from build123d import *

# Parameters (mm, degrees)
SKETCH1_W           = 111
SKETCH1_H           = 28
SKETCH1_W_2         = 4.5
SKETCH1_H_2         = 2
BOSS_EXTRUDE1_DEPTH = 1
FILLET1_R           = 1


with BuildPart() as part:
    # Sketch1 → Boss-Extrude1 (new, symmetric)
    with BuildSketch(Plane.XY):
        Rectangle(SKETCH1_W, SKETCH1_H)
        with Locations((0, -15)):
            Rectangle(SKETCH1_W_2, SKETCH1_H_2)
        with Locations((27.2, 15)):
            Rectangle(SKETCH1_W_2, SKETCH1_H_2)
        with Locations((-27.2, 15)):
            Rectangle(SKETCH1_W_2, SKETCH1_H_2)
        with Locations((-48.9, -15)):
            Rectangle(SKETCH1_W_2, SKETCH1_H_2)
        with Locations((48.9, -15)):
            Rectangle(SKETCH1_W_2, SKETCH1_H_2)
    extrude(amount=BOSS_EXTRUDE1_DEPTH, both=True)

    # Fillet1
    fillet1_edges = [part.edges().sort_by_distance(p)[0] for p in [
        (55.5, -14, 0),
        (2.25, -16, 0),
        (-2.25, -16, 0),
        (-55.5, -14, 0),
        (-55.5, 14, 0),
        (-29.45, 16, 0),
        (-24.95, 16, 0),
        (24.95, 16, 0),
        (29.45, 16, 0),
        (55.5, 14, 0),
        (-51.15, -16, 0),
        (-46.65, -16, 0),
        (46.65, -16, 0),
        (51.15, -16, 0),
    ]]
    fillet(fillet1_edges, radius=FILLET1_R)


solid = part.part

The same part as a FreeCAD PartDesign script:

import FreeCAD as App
import Part
import Sketcher
from FreeCAD import Vector
Q = App.Units.Quantity


def edges_at(feature, points):
    """Names of the edges that pass closest to the given points."""
    edges = feature.Shape.Edges
    near = lambda p: min(range(len(edges)), key=lambda i: edges[i].distToShape(Part.Vertex(*p))[0])
    return sorted({f"Edge{near(p) + 1}" for p in points})


def add_polygon(sketch, points):
    """Adds a closed chain of lines whose ends are joined by coincident constraints."""
    first, n = sketch.GeometryCount, len(points)
    for a, b in zip(points, points[1:] + points[:1]):
        sketch.addGeometry(Part.LineSegment(App.Vector(*a, 0), App.Vector(*b, 0)), False)
    for i in range(n):
        sketch.addConstraint(Sketcher.Constraint("Coincident", first + i, 2, first + (i + 1) % n, 1))

doc = App.newDocument("Part")
body = doc.addObject("PartDesign::Body", "Body")

# Sketch on XY plane
sketch1 = body.newObject("Sketcher::SketchObject", "Sketch")
sketch1.AttachmentSupport = (doc.getObject("XY_Plane"), [""])
sketch1.MapMode = "FlatFace"
add_polygon(sketch1, [(-55.5, 14), (-55.5, -14), (-51.15, -14), (-51.15, -16), (-46.65, -16), (-46.65, -14), (-2.25, -14), (-2.25, -16), (2.25, -16), (2.25, -14), (46.65, -14), (46.65, -16), (51.15, -16), (51.15, -14), (55.5, -14), (55.5, 14), (29.45, 14), (29.45, 16), (24.95, 16), (24.95, 14), (-24.95, 14), (-24.95, 16), (-29.45, 16), (-29.45, 14)])  # lines 0-23
sketch1.addConstraint([
    Sketcher.Constraint("Vertical", 0),
    Sketcher.Constraint("Horizontal", 1),
    Sketcher.Constraint("Vertical", 2),
    Sketcher.Constraint("Horizontal", 3),
    Sketcher.Constraint("Vertical", 4),
    Sketcher.Constraint("Horizontal", 5),
    Sketcher.Constraint("Vertical", 6),
    Sketcher.Constraint("Horizontal", 7),
    Sketcher.Constraint("Vertical", 8),
    Sketcher.Constraint("Horizontal", 9),
    Sketcher.Constraint("Vertical", 10),
    Sketcher.Constraint("Horizontal", 11),
    Sketcher.Constraint("Vertical", 12),
    Sketcher.Constraint("Horizontal", 13),
    Sketcher.Constraint("Vertical", 14),
    Sketcher.Constraint("Horizontal", 15),
    Sketcher.Constraint("Vertical", 16),
    Sketcher.Constraint("Horizontal", 17),
    Sketcher.Constraint("Vertical", 18),
    Sketcher.Constraint("Horizontal", 19),
    Sketcher.Constraint("Vertical", 20),
    Sketcher.Constraint("Horizontal", 21),
    Sketcher.Constraint("Vertical", 22),
    Sketcher.Constraint("Horizontal", 23),
    Sketcher.Constraint("Symmetric", 0, 2, 14, 2, -1, 1),
    Sketcher.Constraint("Symmetric", 5, 2, 8, 2, -2),
    Sketcher.Constraint("Symmetric", 3, 2, 10, 2, -2),
    Sketcher.Constraint("Symmetric", 1, 2, 12, 2, -2),
    Sketcher.Constraint("Symmetric", 17, 2, 20, 2, -2),
    Sketcher.Constraint("Symmetric", 15, 2, 22, 2, -2),
    Sketcher.Constraint("Horizontal", 1, 2, 4, 2),
    Sketcher.Constraint("Horizontal", 3, 2, 6, 2),
    Sketcher.Constraint("Horizontal", 15, 2, 18, 2),
    Sketcher.Constraint("Equal", 3, 7),
    Sketcher.Constraint("Equal", 11, 17),
    Sketcher.Constraint("Equal", 12, 16),
    Sketcher.Constraint("DistanceY", 0, 2, 0, 1, Q("28 mm")),
    Sketcher.Constraint("DistanceY", 2, 2, 2, 1, Q("2 mm")),
    Sketcher.Constraint("DistanceX", 3, 1, 3, 2, Q("4.5 mm")),
    Sketcher.Constraint("DistanceX", 5, 1, 5, 2, Q("44.4 mm")),
    Sketcher.Constraint("DistanceX", 19, 2, 19, 1, Q("49.9 mm")),
    Sketcher.Constraint("DistanceX", 1, 1, 1, 2, Q("4.35 mm")),
])
pad1 = body.newObject("PartDesign::Pad", "Pad")
pad1.Profile = sketch1
pad1.Length = 2
pad1.Midplane = True
doc.recompute()

fillet = body.newObject("PartDesign::Fillet", "Fillet")
fillet.Base = (pad1, edges_at(pad1, [
    (55.5, -14, 0),
    (2.25, -16, 0),
    (-2.25, -16, 0),
    (-55.5, -14, 0),
    (-55.5, 14, 0),
    (-29.45, 16, 0),
    (-24.95, 16, 0),
    (24.95, 16, 0),
    (29.45, 16, 0),
    (55.5, 14, 0),
    (-51.15, -16, 0),
    (-46.65, -16, 0),
    (46.65, -16, 0),
    (51.15, -16, 0),
]))
fillet.Radius = 1

doc.recompute()
